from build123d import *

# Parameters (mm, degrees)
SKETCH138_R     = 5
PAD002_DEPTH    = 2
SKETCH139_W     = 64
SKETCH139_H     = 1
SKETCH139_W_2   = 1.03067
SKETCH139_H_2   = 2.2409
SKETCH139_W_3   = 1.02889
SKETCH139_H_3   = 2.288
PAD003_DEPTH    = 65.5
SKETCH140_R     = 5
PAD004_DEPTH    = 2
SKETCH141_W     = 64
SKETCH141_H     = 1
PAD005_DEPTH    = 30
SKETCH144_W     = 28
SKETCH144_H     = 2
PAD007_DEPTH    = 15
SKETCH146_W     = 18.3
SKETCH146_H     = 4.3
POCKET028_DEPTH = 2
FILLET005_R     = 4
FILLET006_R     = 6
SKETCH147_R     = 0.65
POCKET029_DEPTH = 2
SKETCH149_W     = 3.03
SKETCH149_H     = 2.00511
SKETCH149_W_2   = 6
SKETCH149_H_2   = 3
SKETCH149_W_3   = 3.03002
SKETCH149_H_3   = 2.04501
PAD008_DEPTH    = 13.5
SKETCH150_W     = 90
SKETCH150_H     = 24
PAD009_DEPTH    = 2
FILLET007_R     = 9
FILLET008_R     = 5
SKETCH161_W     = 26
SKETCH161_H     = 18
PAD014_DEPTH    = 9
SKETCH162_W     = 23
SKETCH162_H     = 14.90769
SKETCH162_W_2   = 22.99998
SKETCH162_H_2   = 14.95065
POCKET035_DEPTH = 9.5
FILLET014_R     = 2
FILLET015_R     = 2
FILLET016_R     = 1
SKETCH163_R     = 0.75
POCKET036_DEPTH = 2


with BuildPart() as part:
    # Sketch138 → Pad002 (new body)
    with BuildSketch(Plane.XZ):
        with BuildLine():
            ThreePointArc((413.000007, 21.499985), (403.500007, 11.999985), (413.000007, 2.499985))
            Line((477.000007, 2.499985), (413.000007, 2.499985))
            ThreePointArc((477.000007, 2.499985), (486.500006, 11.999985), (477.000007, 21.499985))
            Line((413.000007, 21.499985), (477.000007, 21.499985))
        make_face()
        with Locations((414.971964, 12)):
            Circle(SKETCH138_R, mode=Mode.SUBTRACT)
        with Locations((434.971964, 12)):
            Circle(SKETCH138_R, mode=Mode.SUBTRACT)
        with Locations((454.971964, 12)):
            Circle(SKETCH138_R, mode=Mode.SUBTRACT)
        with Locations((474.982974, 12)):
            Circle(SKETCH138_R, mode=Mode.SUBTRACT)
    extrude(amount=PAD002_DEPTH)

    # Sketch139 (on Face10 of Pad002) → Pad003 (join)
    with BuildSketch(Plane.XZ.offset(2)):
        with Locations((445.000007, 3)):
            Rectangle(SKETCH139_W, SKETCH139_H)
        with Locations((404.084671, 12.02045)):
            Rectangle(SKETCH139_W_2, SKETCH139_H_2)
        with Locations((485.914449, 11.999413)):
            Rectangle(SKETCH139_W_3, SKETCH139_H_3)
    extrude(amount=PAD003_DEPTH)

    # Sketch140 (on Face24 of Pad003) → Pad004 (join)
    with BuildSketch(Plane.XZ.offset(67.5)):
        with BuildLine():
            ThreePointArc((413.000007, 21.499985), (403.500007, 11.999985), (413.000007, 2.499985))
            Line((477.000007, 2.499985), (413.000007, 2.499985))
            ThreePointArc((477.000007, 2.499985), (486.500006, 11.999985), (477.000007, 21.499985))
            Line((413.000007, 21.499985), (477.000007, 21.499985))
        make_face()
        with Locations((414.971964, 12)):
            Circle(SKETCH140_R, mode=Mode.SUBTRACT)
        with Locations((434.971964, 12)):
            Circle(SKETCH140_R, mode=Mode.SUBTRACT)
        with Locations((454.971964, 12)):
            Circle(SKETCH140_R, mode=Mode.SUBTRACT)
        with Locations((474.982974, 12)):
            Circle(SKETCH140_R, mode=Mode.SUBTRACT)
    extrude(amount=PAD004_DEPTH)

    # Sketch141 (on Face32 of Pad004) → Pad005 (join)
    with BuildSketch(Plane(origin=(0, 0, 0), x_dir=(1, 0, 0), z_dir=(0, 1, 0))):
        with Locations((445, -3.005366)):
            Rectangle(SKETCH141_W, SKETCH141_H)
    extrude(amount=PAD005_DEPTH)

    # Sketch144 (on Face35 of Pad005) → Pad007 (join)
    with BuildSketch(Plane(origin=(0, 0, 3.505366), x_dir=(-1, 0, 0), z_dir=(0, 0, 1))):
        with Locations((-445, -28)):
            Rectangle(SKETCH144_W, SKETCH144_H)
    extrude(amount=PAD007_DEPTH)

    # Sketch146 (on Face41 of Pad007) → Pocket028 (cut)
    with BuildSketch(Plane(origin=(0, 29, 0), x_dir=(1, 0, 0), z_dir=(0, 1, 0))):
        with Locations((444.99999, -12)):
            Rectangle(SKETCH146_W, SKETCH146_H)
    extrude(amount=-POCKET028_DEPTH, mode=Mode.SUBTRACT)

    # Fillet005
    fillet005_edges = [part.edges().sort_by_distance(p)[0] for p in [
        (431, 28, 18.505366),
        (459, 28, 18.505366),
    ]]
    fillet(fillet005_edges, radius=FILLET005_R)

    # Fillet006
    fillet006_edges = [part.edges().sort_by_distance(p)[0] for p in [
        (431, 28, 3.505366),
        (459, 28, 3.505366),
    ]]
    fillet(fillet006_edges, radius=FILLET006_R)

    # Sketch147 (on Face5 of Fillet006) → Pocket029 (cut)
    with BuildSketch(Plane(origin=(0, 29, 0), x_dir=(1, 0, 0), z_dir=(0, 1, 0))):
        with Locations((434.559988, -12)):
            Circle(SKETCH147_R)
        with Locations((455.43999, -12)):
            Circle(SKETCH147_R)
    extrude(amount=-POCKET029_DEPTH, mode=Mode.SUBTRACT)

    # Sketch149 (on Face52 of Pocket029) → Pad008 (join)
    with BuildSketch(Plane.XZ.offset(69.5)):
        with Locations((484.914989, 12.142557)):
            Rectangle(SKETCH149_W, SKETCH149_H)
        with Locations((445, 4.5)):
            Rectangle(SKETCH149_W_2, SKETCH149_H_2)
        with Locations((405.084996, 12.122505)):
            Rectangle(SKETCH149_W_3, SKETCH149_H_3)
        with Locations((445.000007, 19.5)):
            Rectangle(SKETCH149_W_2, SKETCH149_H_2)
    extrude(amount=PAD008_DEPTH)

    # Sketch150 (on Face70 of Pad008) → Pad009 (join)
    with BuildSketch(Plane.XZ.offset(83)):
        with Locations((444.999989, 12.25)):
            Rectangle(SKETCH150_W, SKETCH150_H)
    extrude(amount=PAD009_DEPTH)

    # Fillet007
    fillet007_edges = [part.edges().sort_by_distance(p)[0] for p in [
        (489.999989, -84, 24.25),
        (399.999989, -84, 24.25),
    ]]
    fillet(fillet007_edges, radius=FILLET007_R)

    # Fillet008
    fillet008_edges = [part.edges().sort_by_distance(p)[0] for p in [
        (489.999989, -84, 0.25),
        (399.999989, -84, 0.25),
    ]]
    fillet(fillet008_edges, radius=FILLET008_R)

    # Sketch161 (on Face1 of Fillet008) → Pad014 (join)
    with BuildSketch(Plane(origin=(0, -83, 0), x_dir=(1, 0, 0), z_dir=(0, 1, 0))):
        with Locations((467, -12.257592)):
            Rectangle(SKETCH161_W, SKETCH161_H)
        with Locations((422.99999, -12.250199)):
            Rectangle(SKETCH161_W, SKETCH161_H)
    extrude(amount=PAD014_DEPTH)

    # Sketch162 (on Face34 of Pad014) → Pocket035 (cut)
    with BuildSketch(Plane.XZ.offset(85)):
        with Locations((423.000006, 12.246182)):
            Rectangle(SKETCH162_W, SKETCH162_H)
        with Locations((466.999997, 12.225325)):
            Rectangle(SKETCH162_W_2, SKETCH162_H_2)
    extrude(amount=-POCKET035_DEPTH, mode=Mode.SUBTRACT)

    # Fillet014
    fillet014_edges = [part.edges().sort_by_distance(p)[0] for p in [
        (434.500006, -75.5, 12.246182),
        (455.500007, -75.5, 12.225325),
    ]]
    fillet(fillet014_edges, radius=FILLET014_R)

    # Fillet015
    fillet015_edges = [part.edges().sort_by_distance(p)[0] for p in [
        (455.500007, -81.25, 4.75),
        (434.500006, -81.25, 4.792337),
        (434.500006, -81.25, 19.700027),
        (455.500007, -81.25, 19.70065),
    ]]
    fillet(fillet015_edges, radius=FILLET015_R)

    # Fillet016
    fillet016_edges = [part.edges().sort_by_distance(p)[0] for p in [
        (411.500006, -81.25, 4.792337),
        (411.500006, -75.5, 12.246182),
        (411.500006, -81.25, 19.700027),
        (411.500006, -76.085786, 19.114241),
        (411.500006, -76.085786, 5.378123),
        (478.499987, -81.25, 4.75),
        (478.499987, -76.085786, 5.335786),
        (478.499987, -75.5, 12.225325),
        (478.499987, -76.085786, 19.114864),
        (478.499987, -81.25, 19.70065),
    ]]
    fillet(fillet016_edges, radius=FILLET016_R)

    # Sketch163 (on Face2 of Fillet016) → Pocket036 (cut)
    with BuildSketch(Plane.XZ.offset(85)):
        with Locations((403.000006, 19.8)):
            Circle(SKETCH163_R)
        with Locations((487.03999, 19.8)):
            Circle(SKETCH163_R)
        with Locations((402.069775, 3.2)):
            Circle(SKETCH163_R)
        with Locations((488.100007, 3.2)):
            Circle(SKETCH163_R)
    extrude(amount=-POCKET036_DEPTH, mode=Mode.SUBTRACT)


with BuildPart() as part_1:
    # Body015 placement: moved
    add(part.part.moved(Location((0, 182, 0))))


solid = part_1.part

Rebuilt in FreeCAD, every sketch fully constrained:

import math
import FreeCAD as App
import Part
import Sketcher

V = App.Vector
Q = App.Units.Quantity


def edges_at(feature, points):
    """Names of the edges that pass closest to the given points."""
    edges = feature.Shape.Edges
    near = lambda p: min(range(len(edges)), key=lambda i: edges[i].distToShape(Part.Vertex(*p))[0])
    return sorted({f"Edge{near(p) + 1}" for p in points})

doc = App.newDocument("Part")
body = doc.addObject("PartDesign::Body", "Body")

# Sketch on XZ plane
sketch1 = doc.addObject("Sketcher::SketchObject", "Sketch")
body.addObject(sketch1)
sketch1.AttachmentSupport = (doc.XZ_Plane, [""])
sketch1.MapMode = "FlatFace"
sketch1.addGeometry([
    Part.ArcOfCircle(Part.Circle(V(413, 12, 0), V(0, 0, 1), 10), math.radians(90), math.radians(270)),  # 0
    Part.LineSegment(V(413, 2, 0), V(477, 2, 0)),  # 1
    Part.ArcOfCircle(Part.Circle(V(477, 12, 0), V(0, 0, 1), 10), math.radians(-90), math.radians(90)),  # 2
    Part.LineSegment(V(477, 21, 0), V(413, 21, 0)),  # 3
    Part.Circle(V(415, 12, 0), V(0, 0, 1), 5),  # 4
    Part.Circle(V(435, 12, 0), V(0, 0, 1), 5),  # 5
    Part.Circle(V(455, 12, 0), V(0, 0, 1), 5),  # 6
    Part.Circle(V(475, 12, 0), V(0, 0, 1), 5),  # 7
], False)
sketch1.addConstraint([
    Sketcher.Constraint("Tangent", 0, 2, 1, 1),
    Sketcher.Constraint("Tangent", 1, 2, 2, 1),
    Sketcher.Constraint("Tangent", 2, 2, 3, 1),
    Sketcher.Constraint("Tangent", 3, 2, 0, 1),
    Sketcher.Constraint("Horizontal", 1),
    Sketcher.Constraint("Horizontal", 3),
    Sketcher.Constraint("Equal", 4, 5),
    Sketcher.Constraint("Equal", 5, 6),
    Sketcher.Constraint("Equal", 6, 7),
    Sketcher.Constraint("Horizontal", 4, 3, 5, 3),
    Sketcher.Constraint("Horizontal", 5, 3, 6, 3),
    Sketcher.Constraint("Horizontal", 6, 3, 7, 3),
    Sketcher.Constraint("Diameter", 4, Q("10 mm")),
    Sketcher.Constraint("Radius", 0, Q("9.5 mm")),
    Sketcher.Constraint("DistanceX", 1, 1, 1, 2, Q("64 mm")),
    Sketcher.Constraint("DistanceY", -1, 1, 4, 3, Q("12 mm")),
    Sketcher.Constraint("DistanceX", 4, 3, 5, 3, Q("20 mm")),
    Sketcher.Constraint("DistanceX", 5, 3, 6, 3, Q("20 mm")),
    Sketcher.Constraint("DistanceX", 4, 3, 2, 3, Q("62.028042 mm")),
    Sketcher.Constraint("DistanceX", 7, 3, 2, 3, Q("2.017032 mm")),
    Sketcher.Constraint("DistanceX", -1, 1, 0, 3, Q("413.000007 mm")),
    Sketcher.Constraint("DistanceY", -1, 1, 0, 3, Q("11.999985 mm")),
])
pad1 = doc.addObject("PartDesign::Pad", "Pad")
body.addObject(pad1)
pad1.Profile = sketch1
pad1.Length = 2

# Sketch on XZ plane
sketch2 = doc.addObject("Sketcher::SketchObject", "Sketch001")
body.addObject(sketch2)
sketch2.AttachmentSupport = (doc.XZ_Plane, [""])
sketch2.MapMode = "FlatFace"
sketch2.AttachmentOffset = App.Placement(V(0, 0, 2), App.Rotation())
sketch2.addGeometry([
    Part.LineSegment(V(413, 3.5, 0), V(413, 2.5, 0)),  # 0
    Part.LineSegment(V(413, 2.5, 0), V(477, 2.5, 0)),  # 1
    Part.LineSegment(V(477, 2.5, 0), V(477, 3.5, 0)),  # 2
    Part.LineSegment(V(477, 3.5, 0), V(413, 3.5, 0)),  # 3
    Part.LineSegment(V(403.6, 13.1, 0), V(403.6, 10.9, 0)),  # 4
    Part.LineSegment(V(403.6, 10.9, 0), V(404.6, 10.9, 0)),  # 5
    Part.LineSegment(V(404.6, 10.9, 0), V(404.6, 13.1, 0)),  # 6
    Part.LineSegment(V(404.6, 13.1, 0), V(403.6, 13.1, 0)),  # 7
    Part.LineSegment(V(485.4, 13.1, 0), V(485.4, 10.9, 0)),  # 8
    Part.LineSegment(V(485.4, 10.9, 0), V(486.4, 10.9, 0)),  # 9
    Part.LineSegment(V(486.4, 10.9, 0), V(486.4, 13.1, 0)),  # 10
    Part.LineSegment(V(486.4, 13.1, 0), V(485.4, 13.1, 0)),  # 11
], False)
sketch2.addConstraint([
    Sketcher.Constraint("Coincident", 0, 2, 1, 1),
    Sketcher.Constraint("Coincident", 1, 2, 2, 1),
    Sketcher.Constraint("Coincident", 2, 2, 3, 1),
    Sketcher.Constraint("Coincident", 3, 2, 0, 1),
    Sketcher.Constraint("Coincident", 4, 2, 5, 1),
    Sketcher.Constraint("Coincident", 5, 2, 6, 1),
    Sketcher.Constraint("Coincident", 6, 2, 7, 1),
    Sketcher.Constraint("Coincident", 7, 2, 4, 1),
    Sketcher.Constraint("Coincident", 8, 2, 9, 1),
    Sketcher.Constraint("Coincident", 9, 2, 10, 1),
    Sketcher.Constraint("Coincident", 10, 2, 11, 1),
    Sketcher.Constraint("Coincident", 11, 2, 8, 1),
    Sketcher.Constraint("Vertical", 0),
    Sketcher.Constraint("Horizontal", 1),
    Sketcher.Constraint("Vertical", 2),
    Sketcher.Constraint("Horizontal", 3),
    Sketcher.Constraint("Vertical", 4),
    Sketcher.Constraint("Horizontal", 5),
    Sketcher.Constraint("Vertical", 6),
    Sketcher.Constraint("Horizontal", 7),
    Sketcher.Constraint("Vertical", 8),
    Sketcher.Constraint("Horizontal", 9),
    Sketcher.Constraint("Vertical", 10),
    Sketcher.Constraint("Horizontal", 11),
    Sketcher.Constraint("DistanceX", 1, 1, 1, 2, Q("64 mm")),
    Sketcher.Constraint("DistanceY", 0, 2, 0, 1, Q("1 mm")),
    Sketcher.Constraint("DistanceY", -1, 1, 0, 2, Q("2.5 mm")),
    Sketcher.Constraint("DistanceY", -1, 1, 4, 2, Q("10.9 mm")),
    Sketcher.Constraint("DistanceX", 5, 2, 3, 2, Q("8.400001 mm")),
    Sketcher.Constraint("DistanceX", 5, 2, 8, 2, Q("80.799998 mm")),
    Sketcher.Constraint("DistanceY", 8, 2, 8, 1, Q("2.288 mm")),
    Sketcher.Constraint("DistanceY", 4, 2, 4, 1, Q("2.2409 mm")),
    Sketcher.Constraint("DistanceX", 5, 1, 5, 2, Q("1.03067 mm")),
    Sketcher.Constraint("DistanceX", 9, 1, 9, 2, Q("1.02889 mm")),
    Sketcher.Constraint("DistanceX", -1, 1, 0, 2, Q("413.000007 mm")),
    Sketcher.Constraint("DistanceY", -1, 1, 8, 2, Q("10.855413 mm")),
])
pad2 = doc.addObject("PartDesign::Pad", "Pad001")
body.addObject(pad2)
pad2.Profile = sketch2
pad2.Length = 65.5

# Sketch on XZ plane
sketch3 = doc.addObject("Sketcher::SketchObject", "Sketch002")
body.addObject(sketch3)
sketch3.AttachmentSupport = (doc.XZ_Plane, [""])
sketch3.MapMode = "FlatFace"
sketch3.AttachmentOffset = App.Placement(V(0, 0, 67.5), App.Rotation())
sketch3.addGeometry([
    Part.ArcOfCircle(Part.Circle(V(413, 12, 0), V(0, 0, 1), 10), math.radians(90), math.radians(270)),  # 0
    Part.LineSegment(V(413, 2, 0), V(477, 2, 0)),  # 1
    Part.ArcOfCircle(Part.Circle(V(477, 12, 0), V(0, 0, 1), 10), math.radians(-90), math.radians(90)),  # 2
    Part.LineSegment(V(477, 21, 0), V(413, 21, 0)),  # 3
    Part.Circle(V(415, 12, 0), V(0, 0, 1), 5),  # 4
    Part.Circle(V(435, 12, 0), V(0, 0, 1), 5),  # 5
    Part.Circle(V(455, 12, 0), V(0, 0, 1), 5),  # 6
    Part.Circle(V(475, 12, 0), V(0, 0, 1), 5),  # 7
], False)
sketch3.addConstraint([
    Sketcher.Constraint("Tangent", 0, 2, 1, 1),
    Sketcher.Constraint("Tangent", 1, 2, 2, 1),
    Sketcher.Constraint("Tangent", 2, 2, 3, 1),
    Sketcher.Constraint("Tangent", 3, 2, 0, 1),
    Sketcher.Constraint("Horizontal", 1),
    Sketcher.Constraint("Horizontal", 3),
    Sketcher.Constraint("Equal", 4, 5),
    Sketcher.Constraint("Equal", 5, 6),
    Sketcher.Constraint("Equal", 6, 7),
    Sketcher.Constraint("Horizontal", 4, 3, 5, 3),
    Sketcher.Constraint("Horizontal", 5, 3, 6, 3),
    Sketcher.Constraint("Horizontal", 6, 3, 7, 3),
    Sketcher.Constraint("Diameter", 4, Q("10 mm")),
    Sketcher.Constraint("Radius", 0, Q("9.5 mm")),
    Sketcher.Constraint("DistanceX", 1, 1, 1, 2, Q("64 mm")),
    Sketcher.Constraint("DistanceY", -1, 1, 4, 3, Q("12 mm")),
    Sketcher.Constraint("DistanceX", 4, 3, 5, 3, Q("20 mm")),
    Sketcher.Constraint("DistanceX", 5, 3, 6, 3, Q("20 mm")),
    Sketcher.Constraint("DistanceX", 4, 3, 2, 3, Q("62.028042 mm")),
    Sketcher.Constraint("DistanceX", 7, 3, 2, 3, Q("2.017032 mm")),
    Sketcher.Constraint("DistanceX", -1, 1, 0, 3, Q("413.000007 mm")),
    Sketcher.Constraint("DistanceY", -1, 1, 0, 3, Q("11.999985 mm")),
])
pad3 = doc.addObject("PartDesign::Pad", "Pad002")
body.addObject(pad3)
pad3.Profile = sketch3
pad3.Length = 2

# Sketch on XZ plane
sketch4 = doc.addObject("Sketcher::SketchObject", "Sketch003")
body.addObject(sketch4)
sketch4.AttachmentSupport = (doc.XZ_Plane, [""])
sketch4.MapMode = "FlatFace"
sketch4.addGeometry([
    Part.LineSegment(V(413, 2.5, 0), V(413, 3.5, 0)),
    Part.LineSegment(V(413, 3.5, 0), V(477, 3.5, 0)),
    Part.LineSegment(V(477, 3.5, 0), V(477, 2.5, 0)),
    Part.LineSegment(V(477, 2.5, 0), V(413, 2.5, 0)),
], False)
sketch4.addConstraint([
    Sketcher.Constraint("Coincident", 0, 2, 1, 1),
    Sketcher.Constraint("Coincident", 1, 2, 2, 1),
    Sketcher.Constraint("Coincident", 2, 2, 3, 1),
    Sketcher.Constraint("Coincident", 3, 2, 0, 1),
    Sketcher.Constraint("Vertical", 0),
    Sketcher.Constraint("Horizontal", 1),
    Sketcher.Constraint("Vertical", 2),
    Sketcher.Constraint("Horizontal", 3),
    Sketcher.Constraint("DistanceX", 1, 1, 1, 2, Q("64 mm")),
    Sketcher.Constraint("DistanceY", 0, 1, 0, 2, Q("1 mm")),
    Sketcher.Constraint("DistanceX", -1, 1, 0, 2, Q("413 mm")),
    Sketcher.Constraint("DistanceY", -1, 1, 0, 2, Q("3.505366 mm")),
])
pad4 = doc.addObject("PartDesign::Pad", "Pad003")
body.addObject(pad4)
pad4.Profile = sketch4
pad4.Length = 30
pad4.Reversed = True

# Sketch on XY plane
sketch5 = doc.addObject("Sketcher::SketchObject", "Sketch004")
body.addObject(sketch5)
sketch5.AttachmentSupport = (doc.XY_Plane, [""])
sketch5.MapMode = "FlatFace"
sketch5.AttachmentOffset = App.Placement(V(0, 0, 3.505366), App.Rotation())
sketch5.addGeometry([
    Part.LineSegment(V(459, 27, 0), V(459, 29, 0)),
    Part.LineSegment(V(459, 29, 0), V(431, 29, 0)),
    Part.LineSegment(V(431, 29, 0), V(431, 27, 0)),
    Part.LineSegment(V(431, 27, 0), V(459, 27, 0)),
], False)
sketch5.addConstraint([
    Sketcher.Constraint("Coincident", 0, 2, 1, 1),
    Sketcher.Constraint("Coincident", 1, 2, 2, 1),
    Sketcher.Constraint("Coincident", 2, 2, 3, 1),
    Sketcher.Constraint("Coincident", 3, 2, 0, 1),
    Sketcher.Constraint("Vertical", 0),
    Sketcher.Constraint("Horizontal", 1),
    Sketcher.Constraint("Vertical", 2),
    Sketcher.Constraint("Horizontal", 3),
    Sketcher.Constraint("DistanceX", 1, 2, 1, 1, Q("28 mm")),
    Sketcher.Constraint("DistanceY", 0, 1, 0, 2, Q("2 mm")),
    Sketcher.Constraint("DistanceX", -1, 1, 0, 2, Q("459 mm")),
    Sketcher.Constraint("DistanceY", -1, 1, 0, 2, Q("29 mm")),
])
pad5 = doc.addObject("PartDesign::Pad", "Pad004")
body.addObject(pad5)
pad5.Profile = sketch5
pad5.Length = 15

# Sketch on XZ plane
sketch6 = doc.addObject("Sketcher::SketchObject", "Sketch005")
body.addObject(sketch6)
sketch6.AttachmentSupport = (doc.XZ_Plane, [""])
sketch6.MapMode = "FlatFace"
sketch6.AttachmentOffset = App.Placement(V(0, 0, -29), App.Rotation())
sketch6.addGeometry([
    Part.LineSegment(V(435.8, 9.8, 0), V(435.8, 14.2, 0)),
    Part.LineSegment(V(435.8, 14.2, 0), V(454.1, 14.2, 0)),
    Part.LineSegment(V(454.1, 14.2, 0), V(454.1, 9.8, 0)),
    Part.LineSegment(V(454.1, 9.8, 0), V(435.8, 9.8, 0)),
], False)
sketch6.addConstraint([
    Sketcher.Constraint("Coincident", 0, 2, 1, 1),
    Sketcher.Constraint("Coincident", 1, 2, 2, 1),
    Sketcher.Constraint("Coincident", 2, 2, 3, 1),
    Sketcher.Constraint("Coincident", 3, 2, 0, 1),
    Sketcher.Constraint("Vertical", 0),
    Sketcher.Constraint("Horizontal", 1),
    Sketcher.Constraint("Vertical", 2),
    Sketcher.Constraint("Horizontal", 3),
    Sketcher.Constraint("DistanceX", 1, 1, 1, 2, Q("18.3 mm")),
    Sketcher.Constraint("DistanceY", 0, 1, 0, 2, Q("4.3 mm")),
    Sketcher.Constraint("DistanceY", -1, 1, 0, 2, Q("14.15 mm")),
    Sketcher.Constraint("DistanceX", -1, 1, 0, 2, Q("435.84999 mm")),
])
pocket1 = doc.addObject("PartDesign::Pocket", "Pocket")
body.addObject(pocket1)
pocket1.Profile = sketch6
pocket1.Length = 2
pocket1.Reversed = True
doc.recompute()

fillet = doc.addObject("PartDesign::Fillet", "Fillet")
body.addObject(fillet)
fillet.Base = (pocket1, edges_at(pocket1, [(431, 28, 18.505), (459, 28, 18.505)]))
fillet.Radius = 4
doc.recompute()

fillet2 = doc.addObject("PartDesign::Fillet", "Fillet001")
body.addObject(fillet2)
fillet2.Base = (fillet, edges_at(fillet, [(431, 28, 3.505), (459, 28, 3.505)]))
fillet2.Radius = 6

# Sketch on XZ plane
sketch7 = doc.addObject("Sketcher::SketchObject", "Sketch006")
body.addObject(sketch7)
sketch7.AttachmentSupport = (doc.XZ_Plane, [""])
sketch7.MapMode = "FlatFace"
sketch7.AttachmentOffset = App.Placement(V(0, 0, -29), App.Rotation())
sketch7.addGeometry([
    Part.Circle(V(434.6, 12, 0), V(0, 0, 1), 0.7),
    Part.Circle(V(455.4, 12, 0), V(0, 0, 1), 0.7),
], False)
sketch7.addConstraint([
    Sketcher.Constraint("Equal", 0, 1),
    Sketcher.Constraint("Horizontal", 0, 3, 1, 3),
    Sketcher.Constraint("Diameter", 0, Q("1.3 mm")),
    Sketcher.Constraint("DistanceY", -1, 1, 0, 3, Q("12 mm")),
    Sketcher.Constraint("DistanceX", -1, 1, 1, 3, Q("455.43999 mm")),
    Sketcher.Constraint("DistanceX", -1, 1, 0, 3, Q("434.559988 mm")),
])
pocket2 = doc.addObject("PartDesign::Pocket", "Pocket001")
body.addObject(pocket2)
pocket2.Profile = sketch7
pocket2.Length = 2
pocket2.Reversed = True

# Sketch on XZ plane
sketch8 = doc.addObject("Sketcher::SketchObject", "Sketch007")
body.addObject(sketch8)
sketch8.AttachmentSupport = (doc.XZ_Plane, [""])
sketch8.MapMode = "FlatFace"
sketch8.AttachmentOffset = App.Placement(V(0, 0, 69.5), App.Rotation())
sketch8.addGeometry([
    Part.LineSegment(V(483.4, 13.1, 0), V(483.4, 11.1, 0)),  # 0
    Part.LineSegment(V(483.4, 11.1, 0), V(486.4, 11.1, 0)),  # 1
    Part.LineSegment(V(486.4, 11.1, 0), V(486.4, 13.1, 0)),  # 2
    Part.LineSegment(V(486.4, 13.1, 0), V(483.4, 13.1, 0)),  # 3
    Part.LineSegment(V(442, 6, 0), V(442, 3, 0)),  # 4
    Part.LineSegment(V(442, 3, 0), V(448, 3, 0)),  # 5
    Part.LineSegment(V(448, 3, 0), V(448, 6, 0)),  # 6
    Part.LineSegment(V(448, 6, 0), V(442, 6, 0)),  # 7
    Part.LineSegment(V(403.6, 13.1, 0), V(403.6, 11.1, 0)),  # 8
    Part.LineSegment(V(403.6, 11.1, 0), V(406.6, 11.1, 0)),  # 9
    Part.LineSegment(V(406.6, 11.1, 0), V(406.6, 13.1, 0)),  # 10
    Part.LineSegment(V(406.6, 13.1, 0), V(403.6, 13.1, 0)),  # 11
    Part.LineSegment(V(442, 21, 0), V(442, 18, 0)),  # 12
    Part.LineSegment(V(442, 18, 0), V(448, 18, 0)),  # 13
    Part.LineSegment(V(448, 18, 0), V(448, 21, 0)),  # 14
    Part.LineSegment(V(448, 21, 0), V(442, 21, 0)),  # 15
], False)
sketch8.addConstraint([
    Sketcher.Constraint("Coincident", 0, 2, 1, 1),
    Sketcher.Constraint("Coincident", 1, 2, 2, 1),
    Sketcher.Constraint("Coincident", 2, 2, 3, 1),
    Sketcher.Constraint("Coincident", 3, 2, 0, 1),
    Sketcher.Constraint("Coincident", 4, 2, 5, 1),
    Sketcher.Constraint("Coincident", 5, 2, 6, 1),
    Sketcher.Constraint("Coincident", 6, 2, 7, 1),
    Sketcher.Constraint("Coincident", 7, 2, 4, 1),
    Sketcher.Constraint("Coincident", 8, 2, 9, 1),
    Sketcher.Constraint("Coincident", 9, 2, 10, 1),
    Sketcher.Constraint("Coincident", 10, 2, 11, 1),
    Sketcher.Constraint("Coincident", 11, 2, 8, 1),
    Sketcher.Constraint("Coincident", 12, 2, 13, 1),
    Sketcher.Constraint("Coincident", 13, 2, 14, 1),
    Sketcher.Constraint("Coincident", 14, 2, 15, 1),
    Sketcher.Constraint("Coincident", 15, 2, 12, 1),
    Sketcher.Constraint("Vertical", 0),
    Sketcher.Constraint("Horizontal", 1),
    Sketcher.Constraint("Vertical", 2),
    Sketcher.Constraint("Horizontal", 3),
    Sketcher.Constraint("Vertical", 4),
    Sketcher.Constraint("Horizontal", 5),
    Sketcher.Constraint("Vertical", 6),
    Sketcher.Constraint("Horizontal", 7),
    Sketcher.Constraint("Vertical", 8),
    Sketcher.Constraint("Horizontal", 9),
    Sketcher.Constraint("Vertical", 10),
    Sketcher.Constraint("Horizontal", 11),
    Sketcher.Constraint("Vertical", 12),
    Sketcher.Constraint("Horizontal", 13),
    Sketcher.Constraint("Vertical", 14),
    Sketcher.Constraint("Horizontal", 15),
    Sketcher.Constraint("Equal", 7, 13),
    Sketcher.Constraint("Equal", 6, 12),
    Sketcher.Constraint("DistanceX", 5, 1, 5, 2, Q("6 mm")),
    Sketcher.Constraint("DistanceY", 4, 2, 4, 1, Q("3 mm")),
    Sketcher.Constraint("DistanceX", -1, 1, 4, 2, Q("442 mm")),
    Sketcher.Constraint("DistanceY", -1, 1, 4, 2, Q("3 mm")),
    Sketcher.Constraint("DistanceY", -1, 1, 12, 2, Q("18 mm")),
    Sketcher.Constraint("DistanceX", 1, 1, 1, 2, Q("3.03 mm")),
    Sketcher.Constraint("DistanceY", -1, 1, 8, 2, Q("11.1 mm")),
    Sketcher.Constraint("DistanceX", 10, 2, 12, 2, Q("35.400001 mm")),
    Sketcher.Constraint("DistanceX", 9, 1, 9, 2, Q("3.03002 mm")),
    Sketcher.Constraint("DistanceY", 0, 2, 0, 1, Q("2.00511 mm")),
    Sketcher.Constraint("DistanceY", 8, 2, 8, 1, Q("2.04501 mm")),
    Sketcher.Constraint("DistanceX", -1, 1, 0, 2, Q("483.399989 mm")),
    Sketcher.Constraint("DistanceY", -1, 1, 2, 2, Q("13.145112 mm")),
    Sketcher.Constraint("DistanceX", -1, 1, 8, 2, Q("403.569986 mm")),
])
pad6 = doc.addObject("PartDesign::Pad", "Pad005")
body.addObject(pad6)
pad6.Profile = sketch8
pad6.Length = 13.5

# Sketch on XZ plane
sketch9 = doc.addObject("Sketcher::SketchObject", "Sketch008")
body.addObject(sketch9)
sketch9.AttachmentSupport = (doc.XZ_Plane, [""])
sketch9.MapMode = "FlatFace"
sketch9.AttachmentOffset = App.Placement(V(0, 0, 83), App.Rotation())
sketch9.addGeometry([
    Part.LineSegment(V(400, 24, 0), V(400, 0, 0)),
    Part.LineSegment(V(400, 0, 0), V(490, 0, 0)),
    Part.LineSegment(V(490, 0, 0), V(490, 24, 0)),
    Part.LineSegment(V(490, 24, 0), V(400, 24, 0)),
], False)
sketch9.addConstraint([
    Sketcher.Constraint("Coincident", 0, 2, 1, 1),
    Sketcher.Constraint("Coincident", 1, 2, 2, 1),
    Sketcher.Constraint("Coincident", 2, 2, 3, 1),
    Sketcher.Constraint("Coincident", 3, 2, 0, 1),
    Sketcher.Constraint("Vertical", 0),
    Sketcher.Constraint("Horizontal", 1),
    Sketcher.Constraint("Vertical", 2),
    Sketcher.Constraint("Horizontal", 3),
    Sketcher.Constraint("DistanceX", 1, 1, 1, 2, Q("90 mm")),
    Sketcher.Constraint("DistanceY", 0, 2, 0, 1, Q("24 mm")),
    Sketcher.Constraint("DistanceY", -1, 1, 0, 2, Q("0.25 mm")),
    Sketcher.Constraint("DistanceX", -1, 1, 0, 2, Q("399.999989 mm")),
])
pad7 = doc.addObject("PartDesign::Pad", "Pad006")
body.addObject(pad7)
pad7.Profile = sketch9
pad7.Length = 2
doc.recompute()

fillet3 = doc.addObject("PartDesign::Fillet", "Fillet002")
body.addObject(fillet3)
fillet3.Base = (pad7, edges_at(pad7, [(490, -84, 24.25), (400, -84, 24.25)]))
fillet3.Radius = 9
doc.recompute()

fillet4 = doc.addObject("PartDesign::Fillet", "Fillet003")
body.addObject(fillet4)
fillet4.Base = (fillet3, edges_at(fillet3, [(490, -84, 0.25), (400, -84, 0.25)]))
fillet4.Radius = 5

# Sketch on XZ plane
sketch10 = doc.addObject("Sketcher::SketchObject", "Sketch009")
body.addObject(sketch10)
sketch10.AttachmentSupport = (doc.XZ_Plane, [""])
sketch10.MapMode = "FlatFace"
sketch10.AttachmentOffset = App.Placement(V(0, 0, 83), App.Rotation())
sketch10.addGeometry([
    Part.LineSegment(V(454, 3, 0), V(454, 21, 0)),  # 0
    Part.LineSegment(V(454, 21, 0), V(480, 21, 0)),  # 1
    Part.LineSegment(V(480, 21, 0), V(480, 3, 0)),  # 2
    Part.LineSegment(V(480, 3, 0), V(454, 3, 0)),  # 3
    Part.LineSegment(V(410, 3, 0), V(410, 21, 0)),  # 4
    Part.LineSegment(V(410, 21, 0), V(436, 21, 0)),  # 5
    Part.LineSegment(V(436, 21, 0), V(436, 3, 0)),  # 6
    Part.LineSegment(V(436, 3, 0), V(410, 3, 0)),  # 7
], False)
sketch10.addConstraint([
    Sketcher.Constraint("Coincident", 0, 2, 1, 1),
    Sketcher.Constraint("Coincident", 1, 2, 2, 1),
    Sketcher.Constraint("Coincident", 2, 2, 3, 1),
    Sketcher.Constraint("Coincident", 3, 2, 0, 1),
    Sketcher.Constraint("Coincident", 4, 2, 5, 1),
    Sketcher.Constraint("Coincident", 5, 2, 6, 1),
    Sketcher.Constraint("Coincident", 6, 2, 7, 1),
    Sketcher.Constraint("Coincident", 7, 2, 4, 1),
    Sketcher.Constraint("Vertical", 0),
    Sketcher.Constraint("Horizontal", 1),
    Sketcher.Constraint("Vertical", 2),
    Sketcher.Constraint("Horizontal", 3),
    Sketcher.Constraint("Vertical", 4),
    Sketcher.Constraint("Horizontal", 5),
    Sketcher.Constraint("Vertical", 6),
    Sketcher.Constraint("Horizontal", 7),
    Sketcher.Constraint("Equal", 3, 5),
    Sketcher.Constraint("Equal", 2, 4),
    Sketcher.Constraint("DistanceX", 1, 1, 1, 2, Q("26 mm")),
    Sketcher.Constraint("DistanceY", 0, 1, 0, 2, Q("18 mm")),
    Sketcher.Constraint("DistanceX", -1, 1, 0, 2, Q("454 mm")),
    Sketcher.Constraint("DistanceY", -1, 1, 4, 2, Q("21.250199 mm")),
    Sketcher.Constraint("DistanceY", -1, 1, 0, 2, Q("21.257592 mm")),
    Sketcher.Constraint("DistanceX", -1, 1, 4, 2, Q("409.99999 mm")),
])
pad8 = doc.addObject("PartDesign::Pad", "Pad007")
body.addObject(pad8)
pad8.Profile = sketch10
pad8.Length = 9
pad8.Reversed = True

# Sketch on XZ plane
sketch11 = doc.addObject("Sketcher::SketchObject", "Sketch010")
body.addObject(sketch11)
sketch11.AttachmentSupport = (doc.XZ_Plane, [""])
sketch11.MapMode = "FlatFace"
sketch11.AttachmentOffset = App.Placement(V(0, 0, 85), App.Rotation())
sketch11.addGeometry([
    Part.LineSegment(V(412, 20, 0), V(412, 5, 0)),  # 0
    Part.LineSegment(V(412, 5, 0), V(435, 5, 0)),  # 1
    Part.LineSegment(V(435, 5, 0), V(435, 20, 0)),  # 2
    Part.LineSegment(V(435, 20, 0), V(412, 20, 0)),  # 3
    Part.LineSegment(V(456, 20, 0), V(456, 5, 0)),  # 4
    Part.LineSegment(V(456, 5, 0), V(478, 5, 0)),  # 5
    Part.LineSegment(V(478, 5, 0), V(478, 20, 0)),  # 6
    Part.LineSegment(V(478, 20, 0), V(456, 20, 0)),  # 7
], False)
sketch11.addConstraint([
    Sketcher.Constraint("Coincident", 0, 2, 1, 1),
    Sketcher.Constraint("Coincident", 1, 2, 2, 1),
    Sketcher.Constraint("Coincident", 2, 2, 3, 1),
    Sketcher.Constraint("Coincident", 3, 2, 0, 1),
    Sketcher.Constraint("Coincident", 4, 2, 5, 1),
    Sketcher.Constraint("Coincident", 5, 2, 6, 1),
    Sketcher.Constraint("Coincident", 6, 2, 7, 1),
    Sketcher.Constraint("Coincident", 7, 2, 4, 1),
    Sketcher.Constraint("Vertical", 0),
    Sketcher.Constraint("Horizontal", 1),
    Sketcher.Constraint("Vertical", 2),
    Sketcher.Constraint("Horizontal", 3),
    Sketcher.Constraint("Vertical", 4),
    Sketcher.Constraint("Horizontal", 5),
    Sketcher.Constraint("Vertical", 6),
    Sketcher.Constraint("Horizontal", 7),
    Sketcher.Constraint("DistanceX", 1, 1, 1, 2, Q("23 mm")),
    Sketcher.Constraint("DistanceX", 1, 2, 4, 2, Q("21.000001 mm")),
    Sketcher.Constraint("DistanceY", -1, 1, 4, 2, Q("4.75 mm")),
    Sketcher.Constraint("DistanceX", 5, 1, 5, 2, Q("22.99998 mm")),
    Sketcher.Constraint("DistanceY", 0, 2, 0, 1, Q("14.90769 mm")),
    Sketcher.Constraint("DistanceY", 4, 2, 4, 1, Q("14.95065 mm")),
    Sketcher.Constraint("DistanceX", -1, 1, 0, 2, Q("411.500006 mm")),
    Sketcher.Constraint("DistanceY", -1, 1, 0, 2, Q("4.792337 mm")),
])
pocket3 = doc.addObject("PartDesign::Pocket", "Pocket002")
body.addObject(pocket3)
pocket3.Profile = sketch11
pocket3.Length = 9.5
doc.recompute()

fillet5 = doc.addObject("PartDesign::Fillet", "Fillet004")
body.addObject(fillet5)
fillet5.Base = (pocket3, edges_at(pocket3, [(434.5, -75.5, 12.246), (455.5, -75.5, 12.225)]))
fillet5.Radius = 2
doc.recompute()

fillet6 = doc.addObject("PartDesign::Fillet", "Fillet005")
body.addObject(fillet6)
fillet6.Base = (fillet5, edges_at(fillet5, [
    (455.5, -81.25, 4.75),
    (434.5, -81.25, 4.792),
    (434.5, -81.25, 19.7),
    (455.5, -81.25, 19.701),
]))
fillet6.Radius = 2
doc.recompute()

fillet7 = doc.addObject("PartDesign::Fillet", "Fillet006")
body.addObject(fillet7)
fillet7.Base = (fillet6, edges_at(fillet6, [
    (411.5, -81.25, 4.792),
    (411.5, -75.5, 12.246),
    (411.5, -81.25, 19.7),
    (411.5, -76.086, 19.114),
    (411.5, -76.086, 5.378),
    (478.5, -81.25, 4.75),
    (478.5, -76.086, 5.336),
    (478.5, -75.5, 12.225),
    (478.5, -76.086, 19.115),
    (478.5, -81.25, 19.701),
]))
fillet7.Radius = 1

# Sketch on XZ plane
sketch12 = doc.addObject("Sketcher::SketchObject", "Sketch011")
body.addObject(sketch12)
sketch12.AttachmentSupport = (doc.XZ_Plane, [""])
sketch12.MapMode = "FlatFace"
sketch12.AttachmentOffset = App.Placement(V(0, 0, 85), App.Rotation())
sketch12.addGeometry([
    Part.Circle(V(403, 19.8, 0), V(0, 0, 1), 0.8),
    Part.Circle(V(487, 19.8, 0), V(0, 0, 1), 0.8),
    Part.Circle(V(402.1, 3.2, 0), V(0, 0, 1), 0.8),
    Part.Circle(V(488.1, 3.2, 0), V(0, 0, 1), 0.8),
], False)
sketch12.addConstraint([
    Sketcher.Constraint("Equal", 0, 1),
    Sketcher.Constraint("Equal", 1, 2),
    Sketcher.Constraint("Equal", 2, 3),
    Sketcher.Constraint("Horizontal", 0, 3, 1, 3),
    Sketcher.Constraint("Horizontal", 2, 3, 3, 3),
    Sketcher.Constraint("Diameter", 0, Q("1.5 mm")),
    Sketcher.Constraint("DistanceY", -1, 1, 0, 3, Q("19.8 mm")),
    Sketcher.Constraint("DistanceY", -1, 1, 2, 3, Q("3.2 mm")),
    Sketcher.Constraint("DistanceX", 0, 3, 3, 3, Q("85.100001 mm")),
    Sketcher.Constraint("DistanceX", -1, 1, 1, 3, Q("487.03999 mm")),
    Sketcher.Constraint("DistanceX", 2, 3, 0, 3, Q("0.930231 mm")),
    Sketcher.Constraint("DistanceX", -1, 1, 0, 3, Q("403.000006 mm")),
])
pocket4 = doc.addObject("PartDesign::Pocket", "Pocket003")
body.addObject(pocket4)
pocket4.Profile = sketch12
pocket4.Length = 2
body2 = doc.addObject("PartDesign::Body", "Body001")
doc.recompute()

body.Placement = App.Placement(V(0, 182, 0), App.Rotation(V(0, 0, 1), 0))
boolean = doc.addObject("PartDesign::Boolean", "Boolean")
body2.addObject(boolean)
boolean.Type = "Fuse"
boolean.addObjects([body])

doc.recompute()
